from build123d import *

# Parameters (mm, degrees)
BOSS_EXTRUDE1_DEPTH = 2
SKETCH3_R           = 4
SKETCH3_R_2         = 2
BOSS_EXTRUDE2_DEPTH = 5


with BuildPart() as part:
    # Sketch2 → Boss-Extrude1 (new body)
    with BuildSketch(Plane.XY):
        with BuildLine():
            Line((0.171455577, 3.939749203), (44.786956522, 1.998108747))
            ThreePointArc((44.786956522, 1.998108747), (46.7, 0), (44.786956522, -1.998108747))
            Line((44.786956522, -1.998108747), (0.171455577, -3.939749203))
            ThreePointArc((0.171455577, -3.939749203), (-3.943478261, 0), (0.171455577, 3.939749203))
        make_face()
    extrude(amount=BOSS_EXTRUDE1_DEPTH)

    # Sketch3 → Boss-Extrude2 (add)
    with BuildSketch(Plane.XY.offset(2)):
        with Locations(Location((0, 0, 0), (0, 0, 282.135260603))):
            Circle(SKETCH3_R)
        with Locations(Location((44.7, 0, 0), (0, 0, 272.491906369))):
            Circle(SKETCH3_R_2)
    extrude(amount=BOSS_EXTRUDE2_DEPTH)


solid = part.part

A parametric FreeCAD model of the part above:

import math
import FreeCAD as App
import Part
import Sketcher
from FreeCAD import Vector
Q = App.Units.Quantity

doc = App.newDocument("Part")
body = doc.addObject("PartDesign::Body", "Body")

sketch1 = body.newObject("Sketcher::SketchObject", "Sketch")
sketch1.AttachmentSupport = (doc.getObject("XY_Plane"), [""])
sketch1.MapMode = "FlatFace"
sketch1.addGeometry(Part.LineSegment(Vector(44.8, 2, 0), Vector(0.2, 3.9, 0)), False)
sketch1.addGeometry(Part.ArcOfCircle(Part.Circle(Vector(0, 0, 0), Vector(0, 0, 1), 3.9), math.radians(88), math.radians(272)), False)
sketch1.addGeometry(Part.LineSegment(Vector(0.2, -3.9, 0), Vector(44.8, -2, 0)), False)
sketch1.addGeometry(Part.ArcOfCircle(Part.Circle(Vector(44.7, 0, 0), Vector(0, 0, 1), 2), math.radians(-88), math.radians(88)), False)
sketch1.addConstraint(Sketcher.Constraint("Tangent", 0, 2, 1, 1))
sketch1.addConstraint(Sketcher.Constraint("Tangent", 1, 2, 2, 1))
sketch1.addConstraint(Sketcher.Constraint("Tangent", 2, 2, 3, 1))
sketch1.addConstraint(Sketcher.Constraint("Tangent", 3, 2, 0, 1))
sketch1.addConstraint(Sketcher.Constraint("Coincident", 1, 3, -1, 1))
sketch1.addConstraint(Sketcher.Constraint("PointOnObject", 3, 3, -1))
sketch1.addConstraint(Sketcher.Constraint("Radius", 3, Q("2 mm")))
sketch1.addConstraint(Sketcher.Constraint("DistanceX", -1, 1, 3, 3, Q("44.7 mm")))
sketch1.addConstraint(Sketcher.Constraint("Radius", 1, Q("3.943478 mm")))
pad1 = body.newObject("PartDesign::Pad", "Pad")
pad1.Profile = sketch1
pad1.Length = 2

sketch2 = body.newObject("Sketcher::SketchObject", "Sketch001")
sketch2.AttachmentSupport = (doc.getObject("XY_Plane"), [""])
sketch2.MapMode = "FlatFace"
sketch2.AttachmentOffset = App.Placement(Vector(0, 0, 2), App.Rotation())
sketch2.addGeometry(Part.Circle(Vector(0, 0, 0), Vector(0, 0, 1), 4), False)
sketch2.addGeometry(Part.Circle(Vector(44.7, 0, 0), Vector(0, 0, 1), 2), False)
sketch2.addConstraint(Sketcher.Constraint("Coincident", 0, 3, -1, 1))
sketch2.addConstraint(Sketcher.Constraint("PointOnObject", 1, 3, -1))
sketch2.addConstraint(Sketcher.Constraint("Diameter", 0, Q("8 mm")))
sketch2.addConstraint(Sketcher.Constraint("Diameter", 1, Q("4 mm")))
sketch2.addConstraint(Sketcher.Constraint("DistanceX", -1, 1, 1, 3, Q("44.7 mm")))
pad2 = body.newObject("PartDesign::Pad", "Pad001")
pad2.Profile = sketch2
pad2.Length = 5

doc.recompute()
